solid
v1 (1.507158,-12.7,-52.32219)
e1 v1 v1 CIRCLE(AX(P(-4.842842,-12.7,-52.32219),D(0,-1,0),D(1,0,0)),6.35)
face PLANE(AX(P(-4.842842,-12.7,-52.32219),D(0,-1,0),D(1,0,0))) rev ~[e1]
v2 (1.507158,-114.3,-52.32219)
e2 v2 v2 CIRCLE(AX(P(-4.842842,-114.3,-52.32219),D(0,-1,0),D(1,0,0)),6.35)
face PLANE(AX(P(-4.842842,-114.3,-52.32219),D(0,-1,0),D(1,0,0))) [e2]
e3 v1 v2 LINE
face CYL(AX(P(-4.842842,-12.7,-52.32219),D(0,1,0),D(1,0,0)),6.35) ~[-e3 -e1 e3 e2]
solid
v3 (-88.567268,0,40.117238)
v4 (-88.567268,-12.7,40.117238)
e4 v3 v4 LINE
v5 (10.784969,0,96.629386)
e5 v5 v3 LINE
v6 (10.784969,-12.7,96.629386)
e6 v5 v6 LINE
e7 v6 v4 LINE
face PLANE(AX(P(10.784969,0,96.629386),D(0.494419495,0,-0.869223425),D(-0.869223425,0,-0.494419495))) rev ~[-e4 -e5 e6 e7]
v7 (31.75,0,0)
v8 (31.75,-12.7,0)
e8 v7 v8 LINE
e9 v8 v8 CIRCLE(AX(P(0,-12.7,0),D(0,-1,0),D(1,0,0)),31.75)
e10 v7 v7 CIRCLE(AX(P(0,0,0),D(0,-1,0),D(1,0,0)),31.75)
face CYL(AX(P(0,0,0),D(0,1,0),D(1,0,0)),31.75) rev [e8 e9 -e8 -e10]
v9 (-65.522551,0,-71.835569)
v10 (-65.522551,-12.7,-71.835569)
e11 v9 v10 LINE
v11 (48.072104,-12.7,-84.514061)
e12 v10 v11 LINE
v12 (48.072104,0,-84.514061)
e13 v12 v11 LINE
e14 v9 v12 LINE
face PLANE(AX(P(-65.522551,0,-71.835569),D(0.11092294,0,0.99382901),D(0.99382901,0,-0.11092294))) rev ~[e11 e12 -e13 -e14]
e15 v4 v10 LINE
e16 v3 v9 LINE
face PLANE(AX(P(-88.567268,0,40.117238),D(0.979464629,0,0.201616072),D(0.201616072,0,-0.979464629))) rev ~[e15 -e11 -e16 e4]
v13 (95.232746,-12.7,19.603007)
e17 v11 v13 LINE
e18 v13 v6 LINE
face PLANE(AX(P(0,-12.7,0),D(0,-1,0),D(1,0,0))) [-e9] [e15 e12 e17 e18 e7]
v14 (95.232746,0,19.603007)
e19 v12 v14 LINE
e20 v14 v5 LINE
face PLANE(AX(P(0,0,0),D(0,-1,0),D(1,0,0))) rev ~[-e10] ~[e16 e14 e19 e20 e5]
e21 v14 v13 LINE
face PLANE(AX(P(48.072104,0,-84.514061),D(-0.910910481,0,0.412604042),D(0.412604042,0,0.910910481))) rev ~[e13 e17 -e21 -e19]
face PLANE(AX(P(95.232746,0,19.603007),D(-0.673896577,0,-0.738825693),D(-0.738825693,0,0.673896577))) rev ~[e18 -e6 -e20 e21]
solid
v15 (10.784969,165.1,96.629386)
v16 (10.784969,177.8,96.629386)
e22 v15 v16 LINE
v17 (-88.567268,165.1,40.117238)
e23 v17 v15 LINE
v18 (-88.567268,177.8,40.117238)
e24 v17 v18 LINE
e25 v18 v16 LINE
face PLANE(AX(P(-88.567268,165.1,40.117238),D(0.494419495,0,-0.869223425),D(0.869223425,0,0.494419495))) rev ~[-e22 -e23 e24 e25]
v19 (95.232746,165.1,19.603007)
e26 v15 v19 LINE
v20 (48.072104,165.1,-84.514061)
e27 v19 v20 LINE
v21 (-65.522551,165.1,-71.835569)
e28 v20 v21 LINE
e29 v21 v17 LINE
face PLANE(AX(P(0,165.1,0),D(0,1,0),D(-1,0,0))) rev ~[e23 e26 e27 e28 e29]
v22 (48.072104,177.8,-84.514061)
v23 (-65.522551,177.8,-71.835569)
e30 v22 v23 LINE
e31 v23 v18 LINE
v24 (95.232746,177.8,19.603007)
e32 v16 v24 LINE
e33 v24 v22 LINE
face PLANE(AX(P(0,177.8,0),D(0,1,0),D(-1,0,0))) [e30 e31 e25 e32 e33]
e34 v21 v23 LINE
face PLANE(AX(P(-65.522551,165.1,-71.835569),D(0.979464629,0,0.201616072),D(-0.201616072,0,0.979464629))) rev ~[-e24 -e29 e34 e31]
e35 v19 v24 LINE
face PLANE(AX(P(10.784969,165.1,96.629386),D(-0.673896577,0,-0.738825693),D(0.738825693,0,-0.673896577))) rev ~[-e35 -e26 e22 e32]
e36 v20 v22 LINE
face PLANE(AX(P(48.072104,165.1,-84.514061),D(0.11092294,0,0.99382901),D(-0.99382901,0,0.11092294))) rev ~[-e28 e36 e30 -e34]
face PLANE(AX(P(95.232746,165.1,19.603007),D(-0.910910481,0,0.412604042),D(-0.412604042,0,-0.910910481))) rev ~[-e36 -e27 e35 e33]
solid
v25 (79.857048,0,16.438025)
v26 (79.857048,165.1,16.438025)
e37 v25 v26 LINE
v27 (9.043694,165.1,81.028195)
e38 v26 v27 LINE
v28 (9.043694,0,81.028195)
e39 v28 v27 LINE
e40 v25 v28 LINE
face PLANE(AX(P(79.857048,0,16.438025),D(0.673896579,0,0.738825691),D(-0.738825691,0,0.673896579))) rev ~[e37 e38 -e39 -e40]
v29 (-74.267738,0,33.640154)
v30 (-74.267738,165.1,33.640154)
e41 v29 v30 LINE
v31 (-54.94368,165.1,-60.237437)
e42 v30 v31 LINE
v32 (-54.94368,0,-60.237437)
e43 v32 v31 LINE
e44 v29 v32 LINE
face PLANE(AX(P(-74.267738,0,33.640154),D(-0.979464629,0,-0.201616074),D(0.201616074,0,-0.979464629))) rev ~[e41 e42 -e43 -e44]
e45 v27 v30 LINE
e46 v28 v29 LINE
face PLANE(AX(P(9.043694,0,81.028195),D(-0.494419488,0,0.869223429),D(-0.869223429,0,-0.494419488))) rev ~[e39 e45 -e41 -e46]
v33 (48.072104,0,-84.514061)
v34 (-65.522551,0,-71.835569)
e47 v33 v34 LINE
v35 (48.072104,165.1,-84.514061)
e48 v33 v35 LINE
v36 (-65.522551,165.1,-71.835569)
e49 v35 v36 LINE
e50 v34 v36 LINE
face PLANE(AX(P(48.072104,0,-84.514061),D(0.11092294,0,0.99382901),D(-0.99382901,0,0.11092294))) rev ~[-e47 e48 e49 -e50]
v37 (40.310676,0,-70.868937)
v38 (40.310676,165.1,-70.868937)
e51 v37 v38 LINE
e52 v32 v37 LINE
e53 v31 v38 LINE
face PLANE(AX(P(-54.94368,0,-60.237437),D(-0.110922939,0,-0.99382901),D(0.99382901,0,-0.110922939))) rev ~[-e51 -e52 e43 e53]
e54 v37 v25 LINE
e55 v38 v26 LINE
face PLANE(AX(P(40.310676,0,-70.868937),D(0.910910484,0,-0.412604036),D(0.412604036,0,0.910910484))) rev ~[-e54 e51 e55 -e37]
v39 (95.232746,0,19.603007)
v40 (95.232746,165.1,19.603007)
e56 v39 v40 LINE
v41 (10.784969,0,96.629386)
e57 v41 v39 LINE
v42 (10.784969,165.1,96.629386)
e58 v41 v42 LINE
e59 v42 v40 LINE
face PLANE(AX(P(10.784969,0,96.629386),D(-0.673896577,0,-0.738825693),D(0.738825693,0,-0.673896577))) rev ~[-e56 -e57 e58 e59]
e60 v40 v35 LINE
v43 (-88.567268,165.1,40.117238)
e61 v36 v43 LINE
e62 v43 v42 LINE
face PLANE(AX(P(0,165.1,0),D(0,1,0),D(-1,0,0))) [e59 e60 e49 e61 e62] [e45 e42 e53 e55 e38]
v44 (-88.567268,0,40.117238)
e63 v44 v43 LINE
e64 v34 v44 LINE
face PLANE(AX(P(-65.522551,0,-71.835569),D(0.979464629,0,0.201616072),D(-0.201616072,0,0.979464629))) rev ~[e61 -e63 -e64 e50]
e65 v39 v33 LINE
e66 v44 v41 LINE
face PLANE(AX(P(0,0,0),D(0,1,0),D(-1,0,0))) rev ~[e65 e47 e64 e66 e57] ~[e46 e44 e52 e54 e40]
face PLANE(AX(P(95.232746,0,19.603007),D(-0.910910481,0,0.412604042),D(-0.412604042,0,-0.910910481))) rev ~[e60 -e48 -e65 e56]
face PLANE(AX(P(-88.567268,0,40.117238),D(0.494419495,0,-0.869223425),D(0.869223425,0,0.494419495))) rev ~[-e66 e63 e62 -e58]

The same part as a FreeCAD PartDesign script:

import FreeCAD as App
import Part
import Sketcher

V = App.Vector
Q = App.Units.Quantity


def add_polygon(sketch, points):
    """Adds a closed chain of lines whose ends are joined by coincident constraints."""
    first, n = sketch.GeometryCount, len(points)
    for a, b in zip(points, points[1:] + points[:1]):
        sketch.addGeometry(Part.LineSegment(App.Vector(*a, 0), App.Vector(*b, 0)), False)
    for i in range(n):
        sketch.addConstraint(Sketcher.Constraint("Coincident", first + i, 2, first + (i + 1) % n, 1))

doc = App.newDocument("Part")
params = doc.addObject("Spreadsheet::Sheet", "Params")
for row, (alias, value) in enumerate([
    ("sketch1_diameter", "2.5 in"),
    ("sketch1_length", "4.5 in"),
    ("pad1_length", "0.5 in"),
    ("sketch2_length", "4.5 in"),
    ("pad2_length", "6.5 in"),
    ("sketch3_length", "4.5 in"),
    ("pad3_length", "0.5 in"),
    ("sketch4_diameter", "0.5 in"),
    ("pad4_length", "4 in"),
], start=1):
    params.set(f"A{row}", alias)
    params.set(f"B{row}", "=" + value)
    params.setAlias(f"B{row}", alias)

body = doc.addObject("PartDesign::Body", "Body")

sketch1 = doc.addObject("Sketcher::SketchObject", "Sketch")
body.addObject(sketch1)
sketch1.AttachmentSupport = (doc.XZ_Plane, [""])
sketch1.MapMode = "FlatFace"
add_polygon(sketch1, [(10.784969, 96.629386), (-88.567268, 40.117238), (-65.522551, -71.835569), (48.072104, -84.514061), (95.232746, 19.603007)])
sketch1.addGeometry(Part.Circle(V(0, 0, 0), V(0, 0, 1), 31.75), False)
sketch1.addConstraint([
    Sketcher.Constraint("Coincident", 5, 3, -1, 1),
    Sketcher.Constraint("Equal", 0, 1),
    Sketcher.Constraint("Equal", 1, 2),
    Sketcher.Constraint("Equal", 2, 3),
    Sketcher.Constraint("Equal", 3, 4),
    Sketcher.Constraint("Diameter", 5, Q("2.5 in")),
    Sketcher.Constraint("Distance", 0, Q("4.5 in")),
    Sketcher.Constraint("DistanceY", 2, 2, 0, 2, Q("124.631299 mm")),
    Sketcher.Constraint("DistanceX", 0, 2, -1, 1, Q("88.567268 mm")),
    Sketcher.Constraint("DistanceX", 1, 2, -1, 1, Q("65.522551 mm")),
    Sketcher.Constraint("DistanceY", 1, 2, -1, 1, Q("71.835569 mm")),
    Sketcher.Constraint("DistanceX", -1, 1, 4, 2, Q("10.784969 mm")),
])
sketch1.setExpression("Constraints[10]", "Params.sketch1_diameter")
sketch1.setExpression("Constraints[11]", "Params.sketch1_length")
pad1 = doc.addObject("PartDesign::Pad", "Pad")
body.addObject(pad1)
pad1.Profile = sketch1
pad1.setExpression("Length", "Params.pad1_length")
body2 = doc.addObject("PartDesign::Body", "Body001")

sketch2 = doc.addObject("Sketcher::SketchObject", "Sketch001")
body2.addObject(sketch2)
sketch2.AttachmentSupport = (doc.getObject("XZ_Plane001"), [""])
sketch2.MapMode = "FlatFace"
add_polygon(sketch2, [(10.784969, 96.629386), (95.232746, 19.603007), (48.072104, -84.514061), (-65.522551, -71.835569), (-88.567268, 40.117238)])
add_polygon(sketch2, [(40.310676, -70.868937), (79.857048, 16.438025), (9.043694, 81.028195), (-74.267738, 33.640154), (-54.94368, -60.237437)])
sketch2.addConstraint([
    Sketcher.Constraint("Parallel", 1, 5),
    Sketcher.Constraint("Parallel", 0, 6),
    Sketcher.Constraint("Parallel", 4, 7),
    Sketcher.Constraint("Parallel", 3, 8),
    Sketcher.Constraint("Parallel", 2, 9),
    Sketcher.Constraint("Equal", 0, 1),
    Sketcher.Constraint("Equal", 1, 2),
    Sketcher.Constraint("Equal", 2, 3),
    Sketcher.Constraint("Equal", 3, 4),
    Sketcher.Constraint("Equal", 5, 6),
    Sketcher.Constraint("Equal", 6, 7),
    Sketcher.Constraint("Distance", 0, Q("4.5 in")),
    Sketcher.Constraint("DistanceY", 1, 2, 3, 2, Q("124.631299 mm")),
    Sketcher.Constraint("DistanceX", 2, 2, 5, 2, Q("145.379599 mm")),
    Sketcher.Constraint("DistanceY", 9, 2, 8, 2, Q("10.6315 mm")),
    Sketcher.Constraint("Distance", 5, Q("95.84582 mm")),
    Sketcher.Constraint("DistanceY", 1, 2, -1, 1, Q("84.514061 mm")),
    Sketcher.Constraint("DistanceX", 2, 2, -1, 1, Q("65.522551 mm")),
    Sketcher.Constraint("DistanceX", -1, 1, 4, 2, Q("10.784969 mm")),
    Sketcher.Constraint("DistanceY", 5, 2, 4, 2, Q("80.191361 mm")),
])
sketch2.setExpression("Constraints[21]", "Params.sketch2_length")
pad2 = doc.addObject("PartDesign::Pad", "Pad001")
body2.addObject(pad2)
pad2.Profile = sketch2
pad2.setExpression("Length", "Params.pad2_length")
pad2.Reversed = True
body3 = doc.addObject("PartDesign::Body", "Body002")

sketch3 = doc.addObject("Sketcher::SketchObject", "Sketch002")
body3.addObject(sketch3)
sketch3.AttachmentSupport = (doc.getObject("XZ_Plane002"), [""])
sketch3.MapMode = "FlatFace"
sketch3.AttachmentOffset = App.Placement(V(0, 0, -6.5 * 25.4), App.Rotation())
add_polygon(sketch3, [(10.784969, 96.629386), (95.232746, 19.603007), (48.072104, -84.514061), (-65.522551, -71.835569), (-88.567268, 40.117238)])
sketch3.addConstraint([
    Sketcher.Constraint("Equal", 0, 1),
    Sketcher.Constraint("Equal", 1, 2),
    Sketcher.Constraint("Equal", 2, 3),
    Sketcher.Constraint("Equal", 3, 4),
    Sketcher.Constraint("Distance", 0, Q("4.5 in")),
    Sketcher.Constraint("DistanceY", 1, 2, 3, 2, Q("124.631299 mm")),
    Sketcher.Constraint("DistanceY", 1, 2, -1, 1, Q("84.514061 mm")),
    Sketcher.Constraint("DistanceX", 2, 2, -1, 1, Q("65.522551 mm")),
    Sketcher.Constraint("DistanceY", 2, 2, -1, 1, Q("71.835569 mm")),
    Sketcher.Constraint("DistanceX", -1, 1, 4, 2, Q("10.784969 mm")),
])
sketch3.setExpression("Constraints[9]", "Params.sketch3_length")
pad3 = doc.addObject("PartDesign::Pad", "Pad002")
body3.addObject(pad3)
pad3.Profile = sketch3
pad3.setExpression("Length", "Params.pad3_length")
pad3.Reversed = True
body4 = doc.addObject("PartDesign::Body", "Body003")

sketch4 = doc.addObject("Sketcher::SketchObject", "Sketch003")
body4.addObject(sketch4)
sketch4.AttachmentSupport = (doc.getObject("XZ_Plane003"), [""])
sketch4.MapMode = "FlatFace"
sketch4.AttachmentOffset = App.Placement(V(0, 0, 0.5 * 25.4), App.Rotation())
sketch4.addGeometry(Part.Circle(V(-4.842842, -52.32219, 0), V(0, 0, 1), 6.35), False)
sketch4.addConstraint([
    Sketcher.Constraint("Diameter", 0, Q("0.5 in")),
    Sketcher.Constraint("DistanceY", 0, 3, -1, 1, Q("52.32219 mm")),
    Sketcher.Constraint("DistanceX", 0, 3, -1, 1, Q("4.842842 mm")),
])
sketch4.setExpression("Constraints[0]", "Params.sketch4_diameter")
pad4 = doc.addObject("PartDesign::Pad", "Pad003")
body4.addObject(pad4)
pad4.Profile = sketch4
pad4.setExpression("Length", "Params.pad4_length")

doc.recompute()
